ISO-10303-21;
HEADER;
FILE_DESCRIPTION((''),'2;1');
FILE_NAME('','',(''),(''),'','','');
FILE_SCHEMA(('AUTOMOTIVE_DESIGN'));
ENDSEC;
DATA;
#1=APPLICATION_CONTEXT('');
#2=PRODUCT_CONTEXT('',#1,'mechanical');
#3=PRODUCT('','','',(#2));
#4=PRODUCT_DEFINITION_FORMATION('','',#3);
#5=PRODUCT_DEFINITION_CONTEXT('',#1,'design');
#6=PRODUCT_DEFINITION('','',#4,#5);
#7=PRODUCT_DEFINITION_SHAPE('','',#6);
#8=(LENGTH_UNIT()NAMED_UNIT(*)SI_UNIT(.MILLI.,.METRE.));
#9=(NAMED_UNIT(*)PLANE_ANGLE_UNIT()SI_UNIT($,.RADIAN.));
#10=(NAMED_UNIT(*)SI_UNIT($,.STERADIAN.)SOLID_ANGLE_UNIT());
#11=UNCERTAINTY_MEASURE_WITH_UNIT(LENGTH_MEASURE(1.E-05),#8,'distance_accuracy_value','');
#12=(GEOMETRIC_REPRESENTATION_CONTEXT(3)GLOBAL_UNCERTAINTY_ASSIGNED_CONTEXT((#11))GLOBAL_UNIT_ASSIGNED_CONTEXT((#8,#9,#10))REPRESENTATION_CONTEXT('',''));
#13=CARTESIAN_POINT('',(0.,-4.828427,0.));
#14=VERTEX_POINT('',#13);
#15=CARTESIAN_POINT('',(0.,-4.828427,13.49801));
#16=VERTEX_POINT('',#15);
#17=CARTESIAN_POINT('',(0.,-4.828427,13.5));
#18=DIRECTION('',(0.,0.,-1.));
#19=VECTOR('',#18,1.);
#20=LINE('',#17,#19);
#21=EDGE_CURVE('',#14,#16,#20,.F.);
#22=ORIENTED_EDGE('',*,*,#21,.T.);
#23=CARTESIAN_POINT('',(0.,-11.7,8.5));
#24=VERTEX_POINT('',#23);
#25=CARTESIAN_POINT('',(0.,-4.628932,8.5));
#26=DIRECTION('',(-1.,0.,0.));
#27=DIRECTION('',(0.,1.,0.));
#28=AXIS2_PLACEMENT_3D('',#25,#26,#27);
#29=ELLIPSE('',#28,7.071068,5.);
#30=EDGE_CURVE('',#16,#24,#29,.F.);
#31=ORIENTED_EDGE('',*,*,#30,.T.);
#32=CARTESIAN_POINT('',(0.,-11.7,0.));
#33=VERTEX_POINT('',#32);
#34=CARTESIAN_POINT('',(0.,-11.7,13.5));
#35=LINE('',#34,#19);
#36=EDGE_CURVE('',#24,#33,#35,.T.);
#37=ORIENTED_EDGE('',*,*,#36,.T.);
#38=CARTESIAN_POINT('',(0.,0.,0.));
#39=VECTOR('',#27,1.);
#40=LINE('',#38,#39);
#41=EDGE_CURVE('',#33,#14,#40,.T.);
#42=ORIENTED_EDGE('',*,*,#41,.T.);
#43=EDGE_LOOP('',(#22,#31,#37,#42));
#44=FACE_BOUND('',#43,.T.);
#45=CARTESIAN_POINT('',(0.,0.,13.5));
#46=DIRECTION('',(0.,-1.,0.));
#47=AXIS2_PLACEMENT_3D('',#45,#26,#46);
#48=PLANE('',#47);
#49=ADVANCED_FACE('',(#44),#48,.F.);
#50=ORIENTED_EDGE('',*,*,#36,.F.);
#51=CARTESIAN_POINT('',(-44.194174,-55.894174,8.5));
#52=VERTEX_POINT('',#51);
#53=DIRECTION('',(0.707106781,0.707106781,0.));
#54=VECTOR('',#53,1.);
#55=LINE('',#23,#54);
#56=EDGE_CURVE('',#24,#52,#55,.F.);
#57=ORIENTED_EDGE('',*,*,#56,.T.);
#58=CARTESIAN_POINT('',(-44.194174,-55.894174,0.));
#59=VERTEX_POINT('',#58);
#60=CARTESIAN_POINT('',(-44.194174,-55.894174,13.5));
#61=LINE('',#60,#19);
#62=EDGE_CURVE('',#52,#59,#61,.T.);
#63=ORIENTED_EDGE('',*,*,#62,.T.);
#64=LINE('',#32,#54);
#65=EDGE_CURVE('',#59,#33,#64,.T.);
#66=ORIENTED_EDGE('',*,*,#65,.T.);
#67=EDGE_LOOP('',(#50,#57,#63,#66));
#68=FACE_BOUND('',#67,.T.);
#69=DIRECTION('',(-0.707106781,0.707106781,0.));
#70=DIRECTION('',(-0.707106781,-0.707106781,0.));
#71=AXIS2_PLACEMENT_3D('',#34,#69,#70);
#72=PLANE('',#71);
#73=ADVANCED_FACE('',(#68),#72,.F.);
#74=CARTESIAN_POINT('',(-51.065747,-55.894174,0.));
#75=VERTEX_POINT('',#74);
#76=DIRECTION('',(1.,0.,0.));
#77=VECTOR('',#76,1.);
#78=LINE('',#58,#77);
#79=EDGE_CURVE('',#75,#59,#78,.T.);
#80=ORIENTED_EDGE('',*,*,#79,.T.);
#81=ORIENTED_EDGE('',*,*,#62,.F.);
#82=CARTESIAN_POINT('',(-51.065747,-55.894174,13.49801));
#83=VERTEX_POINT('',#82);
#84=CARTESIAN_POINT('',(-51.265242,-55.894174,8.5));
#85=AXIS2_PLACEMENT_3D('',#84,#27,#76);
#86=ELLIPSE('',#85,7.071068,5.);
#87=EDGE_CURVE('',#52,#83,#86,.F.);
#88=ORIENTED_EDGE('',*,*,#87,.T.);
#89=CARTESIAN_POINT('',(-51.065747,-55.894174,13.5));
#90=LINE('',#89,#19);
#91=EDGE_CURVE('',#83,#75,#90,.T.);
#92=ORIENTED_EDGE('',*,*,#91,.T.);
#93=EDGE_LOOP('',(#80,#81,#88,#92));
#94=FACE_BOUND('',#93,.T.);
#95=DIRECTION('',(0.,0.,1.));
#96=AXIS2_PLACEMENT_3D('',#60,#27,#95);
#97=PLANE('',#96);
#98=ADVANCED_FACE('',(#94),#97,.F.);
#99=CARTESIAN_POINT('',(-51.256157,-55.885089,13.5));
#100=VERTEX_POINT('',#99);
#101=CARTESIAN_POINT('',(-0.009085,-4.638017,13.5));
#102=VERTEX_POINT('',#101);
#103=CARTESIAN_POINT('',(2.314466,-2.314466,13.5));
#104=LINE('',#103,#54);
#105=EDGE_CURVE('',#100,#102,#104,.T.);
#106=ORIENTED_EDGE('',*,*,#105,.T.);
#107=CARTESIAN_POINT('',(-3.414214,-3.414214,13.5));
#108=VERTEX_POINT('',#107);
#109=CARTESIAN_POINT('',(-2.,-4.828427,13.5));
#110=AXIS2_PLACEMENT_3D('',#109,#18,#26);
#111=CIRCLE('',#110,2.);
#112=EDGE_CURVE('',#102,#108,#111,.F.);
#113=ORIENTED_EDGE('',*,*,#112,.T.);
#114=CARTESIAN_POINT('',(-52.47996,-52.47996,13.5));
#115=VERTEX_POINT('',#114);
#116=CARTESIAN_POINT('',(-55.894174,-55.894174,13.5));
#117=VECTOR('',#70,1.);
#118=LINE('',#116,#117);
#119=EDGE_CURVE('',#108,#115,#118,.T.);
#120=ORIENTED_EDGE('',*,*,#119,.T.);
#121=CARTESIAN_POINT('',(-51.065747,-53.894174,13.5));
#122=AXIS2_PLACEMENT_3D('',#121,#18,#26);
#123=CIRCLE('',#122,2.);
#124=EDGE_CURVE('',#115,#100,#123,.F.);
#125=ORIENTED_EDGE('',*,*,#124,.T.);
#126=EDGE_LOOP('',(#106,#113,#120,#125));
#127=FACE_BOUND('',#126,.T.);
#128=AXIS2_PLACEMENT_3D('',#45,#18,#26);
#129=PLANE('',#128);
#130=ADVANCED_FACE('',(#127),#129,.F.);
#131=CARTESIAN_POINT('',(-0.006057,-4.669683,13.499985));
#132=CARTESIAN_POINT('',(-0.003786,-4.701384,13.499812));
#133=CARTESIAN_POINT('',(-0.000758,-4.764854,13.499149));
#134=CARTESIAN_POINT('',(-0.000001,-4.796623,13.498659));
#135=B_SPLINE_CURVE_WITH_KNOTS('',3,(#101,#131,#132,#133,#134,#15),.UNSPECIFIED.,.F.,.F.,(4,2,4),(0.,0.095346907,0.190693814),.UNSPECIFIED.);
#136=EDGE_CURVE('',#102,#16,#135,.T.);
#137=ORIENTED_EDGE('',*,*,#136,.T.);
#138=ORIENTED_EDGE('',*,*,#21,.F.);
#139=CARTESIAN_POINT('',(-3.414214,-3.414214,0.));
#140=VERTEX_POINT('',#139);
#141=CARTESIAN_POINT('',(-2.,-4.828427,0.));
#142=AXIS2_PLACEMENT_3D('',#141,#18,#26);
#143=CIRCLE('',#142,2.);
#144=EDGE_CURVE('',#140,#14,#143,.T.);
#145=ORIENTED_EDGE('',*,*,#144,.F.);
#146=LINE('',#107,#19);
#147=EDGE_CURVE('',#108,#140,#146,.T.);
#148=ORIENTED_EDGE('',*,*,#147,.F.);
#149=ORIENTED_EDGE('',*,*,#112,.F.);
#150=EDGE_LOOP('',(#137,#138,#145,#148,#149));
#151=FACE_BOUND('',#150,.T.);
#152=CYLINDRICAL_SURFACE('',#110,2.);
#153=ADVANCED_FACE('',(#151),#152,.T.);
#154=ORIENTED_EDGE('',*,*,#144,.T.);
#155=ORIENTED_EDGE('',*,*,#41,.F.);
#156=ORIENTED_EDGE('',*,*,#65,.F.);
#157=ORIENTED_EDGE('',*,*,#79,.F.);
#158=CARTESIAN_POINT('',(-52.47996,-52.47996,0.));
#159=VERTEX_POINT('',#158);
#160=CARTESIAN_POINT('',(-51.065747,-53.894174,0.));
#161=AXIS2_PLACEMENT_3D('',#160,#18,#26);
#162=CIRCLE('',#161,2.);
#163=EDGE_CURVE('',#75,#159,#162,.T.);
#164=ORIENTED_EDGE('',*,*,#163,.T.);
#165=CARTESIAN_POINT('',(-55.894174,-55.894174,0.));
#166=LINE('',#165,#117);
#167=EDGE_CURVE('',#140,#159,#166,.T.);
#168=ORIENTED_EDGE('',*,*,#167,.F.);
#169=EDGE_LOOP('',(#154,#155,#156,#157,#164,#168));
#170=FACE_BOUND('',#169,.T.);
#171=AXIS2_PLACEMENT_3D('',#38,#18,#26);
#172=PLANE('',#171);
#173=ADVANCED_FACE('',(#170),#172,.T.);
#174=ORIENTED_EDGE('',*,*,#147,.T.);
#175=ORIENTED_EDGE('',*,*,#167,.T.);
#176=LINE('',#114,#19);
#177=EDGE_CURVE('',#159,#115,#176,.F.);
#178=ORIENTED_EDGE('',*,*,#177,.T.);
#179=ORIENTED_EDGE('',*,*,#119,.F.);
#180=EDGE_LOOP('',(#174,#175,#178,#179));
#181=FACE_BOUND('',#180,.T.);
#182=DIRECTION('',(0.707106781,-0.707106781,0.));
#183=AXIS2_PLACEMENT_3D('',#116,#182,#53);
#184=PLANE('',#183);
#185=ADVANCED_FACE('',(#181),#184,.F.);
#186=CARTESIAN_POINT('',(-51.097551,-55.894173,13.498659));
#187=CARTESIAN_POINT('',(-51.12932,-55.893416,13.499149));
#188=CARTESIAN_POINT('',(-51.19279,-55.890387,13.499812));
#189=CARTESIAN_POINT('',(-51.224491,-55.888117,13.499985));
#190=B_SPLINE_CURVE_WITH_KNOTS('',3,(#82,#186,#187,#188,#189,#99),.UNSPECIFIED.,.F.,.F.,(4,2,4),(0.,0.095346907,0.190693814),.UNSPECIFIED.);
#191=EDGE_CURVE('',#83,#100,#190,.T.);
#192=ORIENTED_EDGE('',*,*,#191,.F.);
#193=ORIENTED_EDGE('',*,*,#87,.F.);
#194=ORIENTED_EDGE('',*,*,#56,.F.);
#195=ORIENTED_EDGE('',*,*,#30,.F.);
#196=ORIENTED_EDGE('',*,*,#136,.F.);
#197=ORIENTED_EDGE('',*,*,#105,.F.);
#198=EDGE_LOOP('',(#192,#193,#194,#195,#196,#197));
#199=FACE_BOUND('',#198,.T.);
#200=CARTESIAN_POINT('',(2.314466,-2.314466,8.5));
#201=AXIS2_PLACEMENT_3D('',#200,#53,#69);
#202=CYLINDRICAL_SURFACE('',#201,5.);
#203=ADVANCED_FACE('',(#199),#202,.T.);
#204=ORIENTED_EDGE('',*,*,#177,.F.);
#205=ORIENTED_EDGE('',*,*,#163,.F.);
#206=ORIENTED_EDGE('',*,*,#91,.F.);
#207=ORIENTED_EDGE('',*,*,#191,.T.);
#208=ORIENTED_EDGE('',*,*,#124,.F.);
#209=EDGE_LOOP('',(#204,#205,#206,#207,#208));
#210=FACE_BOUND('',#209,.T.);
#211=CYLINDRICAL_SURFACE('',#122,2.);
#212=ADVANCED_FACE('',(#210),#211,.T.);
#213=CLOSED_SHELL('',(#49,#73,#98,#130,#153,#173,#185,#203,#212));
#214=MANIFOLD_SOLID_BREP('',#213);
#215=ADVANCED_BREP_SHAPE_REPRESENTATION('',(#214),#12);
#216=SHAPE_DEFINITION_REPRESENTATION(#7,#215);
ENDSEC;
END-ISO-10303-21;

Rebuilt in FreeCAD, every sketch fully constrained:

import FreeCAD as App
import Part
import Sketcher


def edges_at(feature, points):
    """Names of the edges that pass closest to the given points."""
    edges = feature.Shape.Edges
    near = lambda p: min(range(len(edges)), key=lambda i: edges[i].distToShape(Part.Vertex(*p))[0])
    return sorted({f"Edge{near(p) + 1}" for p in points})


def add_polygon(sketch, points):
    """Adds a closed chain of lines whose ends are joined by coincident constraints."""
    first, n = sketch.GeometryCount, len(points)
    for a, b in zip(points, points[1:] + points[:1]):
        sketch.addGeometry(Part.LineSegment(App.Vector(*a, 0), App.Vector(*b, 0)), False)
    for i in range(n):
        sketch.addConstraint(Sketcher.Constraint("Coincident", first + i, 2, first + (i + 1) % n, 1))

doc = App.newDocument("Part")
params = doc.addObject("Spreadsheet::Sheet", "Params")
for row, (alias, value) in enumerate([
    ("sketch1_width", "11.7 mm"),
    ("sketch1_length", "62.5 mm"),
    ("pad1_length", "13.5 mm"),
    ("fillet_radius", "2 mm"),
    ("fillet2_radius", "2 mm"),
    ("fillet3_radius", "5 mm"),
], start=1):
    params.set(f"A{row}", alias)
    params.set(f"B{row}", "=" + value)
    params.setAlias(f"B{row}", alias)

body = doc.addObject("PartDesign::Body", "Body")

# Sketch on XY plane
sketch1 = doc.addObject("Sketcher::SketchObject", "Sketch")
body.addObject(sketch1)
sketch1.AttachmentSupport = (doc.XY_Plane, [""])
sketch1.MapMode = "FlatFace"
add_polygon(sketch1, [(0, -11.7), (0, 0), (-55.894174, -55.894174), (-44.194174, -55.894174)])  # lines 0-3
sketch1.addConstraint(Sketcher.Constraint("Vertical", 0))
sketch1.addConstraint(Sketcher.Constraint("Horizontal", 2))
sketch1.addConstraint(Sketcher.Constraint("Coincident", 0, 2, -1, 1))
sketch1.addConstraint(Sketcher.Constraint("Parallel", 1, 3))
sketch1.addConstraint(Sketcher.Constraint("Equal", 2, 0))
sketch1.addConstraint(Sketcher.Constraint("DistanceX", 2, 1, 2, 2, 11.7))
sketch1.addConstraint(Sketcher.Constraint("Distance", 3, 62.5))
sketch1.setExpression("Constraints[9]", "Params.sketch1_width")
sketch1.setExpression("Constraints[10]", "Params.sketch1_length")
pad1 = doc.addObject("PartDesign::Pad", "Pad")
body.addObject(pad1)
pad1.Profile = sketch1
pad1.setExpression("Length", "Params.pad1_length")
doc.recompute()

fillet = doc.addObject("PartDesign::Fillet", "Fillet")
body.addObject(fillet)
fillet.Base = (pad1, edges_at(pad1, [(-55.894, -55.894, 6.75)]))
fillet.setExpression("Radius", "Params.fillet_radius")
doc.recompute()

fillet2 = doc.addObject("PartDesign::Fillet", "Fillet001")
body.addObject(fillet2)
fillet2.Base = (fillet, edges_at(fillet, [(0, 0, 6.75)]))
fillet2.setExpression("Radius", "Params.fillet2_radius")
doc.recompute()

fillet3 = doc.addObject("PartDesign::Fillet", "Fillet002")
body.addObject(fillet3)
fillet3.Base = (fillet2, edges_at(fillet2, [(-22.097, -33.797, 13.5)]))
fillet3.setExpression("Radius", "Params.fillet3_radius")

doc.recompute()
